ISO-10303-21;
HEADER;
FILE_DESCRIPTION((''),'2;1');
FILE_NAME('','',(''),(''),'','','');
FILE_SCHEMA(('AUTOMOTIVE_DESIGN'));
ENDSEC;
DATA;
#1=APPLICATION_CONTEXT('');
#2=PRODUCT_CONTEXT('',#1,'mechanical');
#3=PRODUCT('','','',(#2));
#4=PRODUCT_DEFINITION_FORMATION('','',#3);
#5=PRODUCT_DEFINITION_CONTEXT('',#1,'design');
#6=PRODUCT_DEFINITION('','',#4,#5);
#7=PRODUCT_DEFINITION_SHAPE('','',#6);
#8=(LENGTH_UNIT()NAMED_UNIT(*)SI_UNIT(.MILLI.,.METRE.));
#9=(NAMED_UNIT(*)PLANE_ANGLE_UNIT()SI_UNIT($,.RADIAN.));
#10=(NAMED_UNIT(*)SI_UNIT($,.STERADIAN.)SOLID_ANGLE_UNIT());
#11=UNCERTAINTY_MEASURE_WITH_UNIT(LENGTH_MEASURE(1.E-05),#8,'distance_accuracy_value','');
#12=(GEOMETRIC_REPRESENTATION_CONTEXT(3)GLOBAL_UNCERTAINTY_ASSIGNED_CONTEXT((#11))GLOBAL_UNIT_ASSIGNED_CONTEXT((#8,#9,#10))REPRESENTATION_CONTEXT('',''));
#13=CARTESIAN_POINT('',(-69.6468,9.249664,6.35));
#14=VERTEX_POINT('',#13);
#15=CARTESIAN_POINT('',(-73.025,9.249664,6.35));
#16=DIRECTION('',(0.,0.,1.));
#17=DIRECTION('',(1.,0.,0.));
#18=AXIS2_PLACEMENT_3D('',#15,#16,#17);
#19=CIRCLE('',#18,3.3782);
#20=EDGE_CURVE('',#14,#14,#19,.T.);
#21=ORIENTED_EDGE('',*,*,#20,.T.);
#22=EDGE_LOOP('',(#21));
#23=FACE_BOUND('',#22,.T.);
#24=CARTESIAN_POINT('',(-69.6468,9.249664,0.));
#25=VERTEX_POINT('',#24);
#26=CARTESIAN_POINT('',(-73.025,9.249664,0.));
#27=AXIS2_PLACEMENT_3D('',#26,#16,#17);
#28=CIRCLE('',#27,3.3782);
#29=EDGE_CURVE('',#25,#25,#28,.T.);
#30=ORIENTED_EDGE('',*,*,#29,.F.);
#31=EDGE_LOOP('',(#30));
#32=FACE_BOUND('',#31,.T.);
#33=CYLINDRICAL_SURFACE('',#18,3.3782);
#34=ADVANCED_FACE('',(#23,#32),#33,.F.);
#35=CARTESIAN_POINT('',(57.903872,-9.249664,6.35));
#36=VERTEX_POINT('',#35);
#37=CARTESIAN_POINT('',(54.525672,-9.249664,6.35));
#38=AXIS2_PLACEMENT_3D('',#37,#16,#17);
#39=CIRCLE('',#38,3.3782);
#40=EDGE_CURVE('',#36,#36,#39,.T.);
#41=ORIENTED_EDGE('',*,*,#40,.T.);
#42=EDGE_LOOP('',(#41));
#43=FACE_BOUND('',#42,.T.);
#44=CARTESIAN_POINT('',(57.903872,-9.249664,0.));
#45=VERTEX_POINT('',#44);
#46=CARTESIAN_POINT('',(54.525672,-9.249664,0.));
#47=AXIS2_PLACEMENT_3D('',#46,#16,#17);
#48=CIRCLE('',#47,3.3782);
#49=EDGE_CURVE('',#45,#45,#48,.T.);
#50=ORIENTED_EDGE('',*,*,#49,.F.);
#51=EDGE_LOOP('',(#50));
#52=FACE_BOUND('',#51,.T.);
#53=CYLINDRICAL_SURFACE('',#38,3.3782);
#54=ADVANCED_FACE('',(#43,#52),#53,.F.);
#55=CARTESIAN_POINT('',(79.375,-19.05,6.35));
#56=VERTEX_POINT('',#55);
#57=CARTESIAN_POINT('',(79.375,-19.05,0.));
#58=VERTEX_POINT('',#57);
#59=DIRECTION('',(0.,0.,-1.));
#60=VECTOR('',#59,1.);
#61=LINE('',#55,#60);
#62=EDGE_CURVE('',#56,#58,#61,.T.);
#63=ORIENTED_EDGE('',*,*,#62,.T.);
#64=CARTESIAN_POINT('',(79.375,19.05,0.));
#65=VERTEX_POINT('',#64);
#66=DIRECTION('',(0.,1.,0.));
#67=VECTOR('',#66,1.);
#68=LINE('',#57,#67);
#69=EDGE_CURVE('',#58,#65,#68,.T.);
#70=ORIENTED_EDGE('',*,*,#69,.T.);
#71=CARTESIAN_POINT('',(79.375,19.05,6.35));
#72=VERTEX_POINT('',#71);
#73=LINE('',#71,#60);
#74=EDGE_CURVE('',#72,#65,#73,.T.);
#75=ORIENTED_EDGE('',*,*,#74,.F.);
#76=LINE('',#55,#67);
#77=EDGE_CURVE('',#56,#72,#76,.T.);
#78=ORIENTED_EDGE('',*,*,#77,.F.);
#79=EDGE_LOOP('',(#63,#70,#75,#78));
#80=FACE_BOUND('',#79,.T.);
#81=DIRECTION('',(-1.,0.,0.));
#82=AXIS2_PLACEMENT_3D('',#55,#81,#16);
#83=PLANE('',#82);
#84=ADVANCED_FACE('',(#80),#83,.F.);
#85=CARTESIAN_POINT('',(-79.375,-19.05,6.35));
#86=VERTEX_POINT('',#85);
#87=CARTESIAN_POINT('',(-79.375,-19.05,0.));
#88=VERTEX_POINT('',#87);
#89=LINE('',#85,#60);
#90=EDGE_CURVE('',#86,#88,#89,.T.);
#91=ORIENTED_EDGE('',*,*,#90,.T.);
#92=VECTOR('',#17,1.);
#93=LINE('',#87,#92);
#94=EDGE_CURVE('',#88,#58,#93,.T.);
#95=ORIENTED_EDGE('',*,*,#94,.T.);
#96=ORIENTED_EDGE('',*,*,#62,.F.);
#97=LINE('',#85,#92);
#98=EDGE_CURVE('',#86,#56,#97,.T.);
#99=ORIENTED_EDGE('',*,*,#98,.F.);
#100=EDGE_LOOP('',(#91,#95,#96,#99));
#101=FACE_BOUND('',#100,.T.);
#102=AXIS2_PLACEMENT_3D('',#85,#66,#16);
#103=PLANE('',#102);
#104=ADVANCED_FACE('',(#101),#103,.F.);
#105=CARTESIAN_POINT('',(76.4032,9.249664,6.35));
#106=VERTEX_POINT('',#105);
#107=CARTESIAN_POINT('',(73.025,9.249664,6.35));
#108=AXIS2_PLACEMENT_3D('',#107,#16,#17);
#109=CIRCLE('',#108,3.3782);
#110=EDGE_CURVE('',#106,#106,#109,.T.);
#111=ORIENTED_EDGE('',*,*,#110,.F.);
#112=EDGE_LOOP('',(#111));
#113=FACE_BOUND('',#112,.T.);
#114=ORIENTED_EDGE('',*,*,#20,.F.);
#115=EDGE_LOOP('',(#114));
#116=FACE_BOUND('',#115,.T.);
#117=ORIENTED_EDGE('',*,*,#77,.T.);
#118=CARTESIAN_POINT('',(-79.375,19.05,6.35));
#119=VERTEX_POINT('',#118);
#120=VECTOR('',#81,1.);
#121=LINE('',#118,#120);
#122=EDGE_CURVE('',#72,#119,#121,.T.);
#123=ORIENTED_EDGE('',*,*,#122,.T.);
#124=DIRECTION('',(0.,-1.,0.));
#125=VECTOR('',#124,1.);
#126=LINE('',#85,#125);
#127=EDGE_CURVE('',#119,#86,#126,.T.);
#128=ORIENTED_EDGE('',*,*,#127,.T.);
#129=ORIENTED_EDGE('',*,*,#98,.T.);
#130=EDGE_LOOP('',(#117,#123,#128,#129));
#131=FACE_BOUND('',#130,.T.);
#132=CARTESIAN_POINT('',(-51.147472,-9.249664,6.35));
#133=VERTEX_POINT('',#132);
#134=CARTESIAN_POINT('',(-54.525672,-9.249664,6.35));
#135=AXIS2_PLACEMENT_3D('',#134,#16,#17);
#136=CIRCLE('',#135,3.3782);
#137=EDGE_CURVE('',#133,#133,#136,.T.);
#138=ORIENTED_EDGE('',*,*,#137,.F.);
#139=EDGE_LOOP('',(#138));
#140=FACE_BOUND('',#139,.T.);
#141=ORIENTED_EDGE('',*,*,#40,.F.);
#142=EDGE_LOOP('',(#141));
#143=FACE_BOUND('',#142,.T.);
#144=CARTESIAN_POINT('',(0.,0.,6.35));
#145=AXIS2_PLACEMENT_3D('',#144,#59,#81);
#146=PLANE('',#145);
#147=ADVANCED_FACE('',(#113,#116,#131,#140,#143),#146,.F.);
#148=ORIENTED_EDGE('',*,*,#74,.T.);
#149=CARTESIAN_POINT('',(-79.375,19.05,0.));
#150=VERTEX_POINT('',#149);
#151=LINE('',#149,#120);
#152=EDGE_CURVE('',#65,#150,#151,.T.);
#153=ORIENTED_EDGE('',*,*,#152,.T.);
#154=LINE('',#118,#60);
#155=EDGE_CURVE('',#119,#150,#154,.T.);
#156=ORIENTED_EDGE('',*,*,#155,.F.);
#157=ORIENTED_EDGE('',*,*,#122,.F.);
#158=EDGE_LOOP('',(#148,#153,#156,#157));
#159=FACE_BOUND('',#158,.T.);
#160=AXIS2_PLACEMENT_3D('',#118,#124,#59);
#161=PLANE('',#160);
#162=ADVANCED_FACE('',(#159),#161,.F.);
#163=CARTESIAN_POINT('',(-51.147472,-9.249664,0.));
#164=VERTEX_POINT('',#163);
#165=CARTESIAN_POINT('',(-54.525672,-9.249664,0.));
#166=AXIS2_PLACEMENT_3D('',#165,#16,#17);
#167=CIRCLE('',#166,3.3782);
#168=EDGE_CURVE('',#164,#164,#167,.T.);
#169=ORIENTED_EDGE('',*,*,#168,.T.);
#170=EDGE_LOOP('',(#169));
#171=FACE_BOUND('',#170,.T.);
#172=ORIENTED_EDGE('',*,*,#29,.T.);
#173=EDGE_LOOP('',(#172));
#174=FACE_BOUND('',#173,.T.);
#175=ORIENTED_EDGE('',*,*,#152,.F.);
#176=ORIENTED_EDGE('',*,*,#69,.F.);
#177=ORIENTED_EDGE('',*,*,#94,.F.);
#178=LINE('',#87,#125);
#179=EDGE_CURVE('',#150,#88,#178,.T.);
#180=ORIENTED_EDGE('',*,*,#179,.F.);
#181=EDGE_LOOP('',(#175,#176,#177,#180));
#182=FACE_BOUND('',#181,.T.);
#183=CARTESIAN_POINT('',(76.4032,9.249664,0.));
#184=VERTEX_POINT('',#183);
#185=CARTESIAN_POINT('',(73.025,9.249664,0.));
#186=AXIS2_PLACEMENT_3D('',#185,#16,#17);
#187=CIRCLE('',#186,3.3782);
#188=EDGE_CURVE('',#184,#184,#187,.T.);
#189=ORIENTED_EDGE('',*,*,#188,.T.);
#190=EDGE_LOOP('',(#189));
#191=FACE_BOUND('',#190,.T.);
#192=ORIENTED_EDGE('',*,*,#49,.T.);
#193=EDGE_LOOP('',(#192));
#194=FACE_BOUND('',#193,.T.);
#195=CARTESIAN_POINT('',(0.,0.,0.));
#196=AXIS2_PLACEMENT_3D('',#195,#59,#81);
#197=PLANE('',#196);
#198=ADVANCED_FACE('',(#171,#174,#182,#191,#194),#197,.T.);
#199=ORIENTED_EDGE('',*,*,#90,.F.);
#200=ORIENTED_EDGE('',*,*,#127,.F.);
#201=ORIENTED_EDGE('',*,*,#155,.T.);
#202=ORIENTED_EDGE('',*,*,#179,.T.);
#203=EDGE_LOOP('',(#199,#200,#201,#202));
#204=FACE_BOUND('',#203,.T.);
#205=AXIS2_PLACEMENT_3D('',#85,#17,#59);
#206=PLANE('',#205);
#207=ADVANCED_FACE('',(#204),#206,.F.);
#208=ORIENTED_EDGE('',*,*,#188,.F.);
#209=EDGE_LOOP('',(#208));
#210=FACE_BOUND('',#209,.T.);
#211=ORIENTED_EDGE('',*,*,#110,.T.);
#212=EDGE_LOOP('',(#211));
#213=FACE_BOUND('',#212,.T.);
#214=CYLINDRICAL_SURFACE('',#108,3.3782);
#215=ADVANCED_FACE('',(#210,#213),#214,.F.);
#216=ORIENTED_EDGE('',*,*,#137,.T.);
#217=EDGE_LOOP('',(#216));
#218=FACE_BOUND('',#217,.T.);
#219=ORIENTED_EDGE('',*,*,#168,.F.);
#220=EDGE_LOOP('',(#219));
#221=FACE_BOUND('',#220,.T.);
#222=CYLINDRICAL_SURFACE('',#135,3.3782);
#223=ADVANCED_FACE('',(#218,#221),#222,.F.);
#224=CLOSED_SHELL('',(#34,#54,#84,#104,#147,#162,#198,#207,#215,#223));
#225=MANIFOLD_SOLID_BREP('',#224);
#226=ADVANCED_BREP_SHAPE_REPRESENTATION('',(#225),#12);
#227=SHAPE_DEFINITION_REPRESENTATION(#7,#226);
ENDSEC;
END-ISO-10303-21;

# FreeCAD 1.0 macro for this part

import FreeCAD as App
import Part
import Sketcher
from FreeCAD import Vector
Q = App.Units.Quantity

doc = App.newDocument("Part")
params = doc.addObject("Spreadsheet::Sheet", "Params")
for row, (alias, value) in enumerate([
    ("sketch1_height", "1.5 in"),
    ("sketch1_width", "6.25 in"),
    ("pad1_length", "0.25 in"),
    ("sketch2_diameter", "0.266 in"),
    ("hole_diameter", "0.266 in"),
], start=1):
    params.set(f"A{row}", alias)
    params.set(f"B{row}", "=" + value)
    params.setAlias(f"B{row}", alias)

body = doc.addObject("PartDesign::Body", "Body")

sketch1 = body.newObject("Sketcher::SketchObject", "Sketch")
sketch1.AttachmentSupport = (doc.getObject("XY_Plane"), [""])
sketch1.MapMode = "FlatFace"
sketch1.addGeometry(Part.LineSegment(Vector(-79, 19, 0), Vector(-79, -19, 0)), False)
sketch1.addGeometry(Part.LineSegment(Vector(-79, -19, 0), Vector(79, -19, 0)), False)
sketch1.addGeometry(Part.LineSegment(Vector(79, -19, 0), Vector(79, 19, 0)), False)
sketch1.addGeometry(Part.LineSegment(Vector(79, 19, 0), Vector(-79, 19, 0)), False)
sketch1.addConstraint(Sketcher.Constraint("Coincident", 0, 2, 1, 1))
sketch1.addConstraint(Sketcher.Constraint("Coincident", 1, 2, 2, 1))
sketch1.addConstraint(Sketcher.Constraint("Coincident", 2, 2, 3, 1))
sketch1.addConstraint(Sketcher.Constraint("Coincident", 3, 2, 0, 1))
sketch1.addConstraint(Sketcher.Constraint("Vertical", 0))
sketch1.addConstraint(Sketcher.Constraint("Horizontal", 1))
sketch1.addConstraint(Sketcher.Constraint("Vertical", 2))
sketch1.addConstraint(Sketcher.Constraint("Horizontal", 3))
sketch1.addConstraint(Sketcher.Constraint("Symmetric", 0, 2, 2, 2, -1, 1))
sketch1.addConstraint(Sketcher.Constraint("DistanceY", 0, 2, 0, 1, Q("1.5 in")))
sketch1.addConstraint(Sketcher.Constraint("DistanceX", 1, 1, 1, 2, Q("6.25 in")))
sketch1.setExpression("Constraints[9]", "Params.sketch1_height")
sketch1.setExpression("Constraints[10]", "Params.sketch1_width")
pad1 = body.newObject("PartDesign::Pad", "Pad")
pad1.Profile = sketch1
pad1.setExpression("Length", "Params.pad1_length")

sketch2 = body.newObject("Sketcher::SketchObject", "Sketch001")
sketch2.AttachmentSupport = (doc.getObject("XY_Plane"), [""])
sketch2.MapMode = "FlatFace"
sketch2.AttachmentOffset = App.Placement(Vector(0, 0, 0.25 * 25.4), App.Rotation())
sketch2.addGeometry(Part.Circle(Vector(-73, 9.2, 0), Vector(0, 0, 1), 3.4), False)
sketch2.addGeometry(Part.Circle(Vector(-54.5, -9.2, 0), Vector(0, 0, 1), 3.4), False)
sketch2.addConstraint(Sketcher.Constraint("Equal", 0, 1))
sketch2.addConstraint(Sketcher.Constraint("Diameter", 0, Q("0.266 in")))
sketch2.addConstraint(Sketcher.Constraint("DistanceX", 0, 3, -1, 1, Q("2.875 in")))
sketch2.addConstraint(Sketcher.Constraint("DistanceY", -1, 1, 0, 3, Q("9.249664 mm")))
sketch2.addConstraint(Sketcher.Constraint("DistanceX", 1, 3, -1, 1, Q("54.525672 mm")))
sketch2.addConstraint(Sketcher.Constraint("DistanceY", 1, 3, -1, 1, Q("9.249664 mm")))
sketch2.setExpression("Constraints[1]", "Params.sketch2_diameter")
doc.recompute()
hole = body.newObject("PartDesign::Hole", "Hole")
hole.Profile = sketch2
hole.ThreadType = "None"
hole.setExpression("Diameter", "Params.hole_diameter")
hole.DepthType = "ThroughAll"
doc.recompute()

mirrored = body.newObject("PartDesign::Mirrored", "Mirrored")
mirrored.Originals = [hole]
mirrored.MirrorPlane = (doc.getObject("YZ_Plane"), [""])
body.Tip = mirrored

doc.recompute()
